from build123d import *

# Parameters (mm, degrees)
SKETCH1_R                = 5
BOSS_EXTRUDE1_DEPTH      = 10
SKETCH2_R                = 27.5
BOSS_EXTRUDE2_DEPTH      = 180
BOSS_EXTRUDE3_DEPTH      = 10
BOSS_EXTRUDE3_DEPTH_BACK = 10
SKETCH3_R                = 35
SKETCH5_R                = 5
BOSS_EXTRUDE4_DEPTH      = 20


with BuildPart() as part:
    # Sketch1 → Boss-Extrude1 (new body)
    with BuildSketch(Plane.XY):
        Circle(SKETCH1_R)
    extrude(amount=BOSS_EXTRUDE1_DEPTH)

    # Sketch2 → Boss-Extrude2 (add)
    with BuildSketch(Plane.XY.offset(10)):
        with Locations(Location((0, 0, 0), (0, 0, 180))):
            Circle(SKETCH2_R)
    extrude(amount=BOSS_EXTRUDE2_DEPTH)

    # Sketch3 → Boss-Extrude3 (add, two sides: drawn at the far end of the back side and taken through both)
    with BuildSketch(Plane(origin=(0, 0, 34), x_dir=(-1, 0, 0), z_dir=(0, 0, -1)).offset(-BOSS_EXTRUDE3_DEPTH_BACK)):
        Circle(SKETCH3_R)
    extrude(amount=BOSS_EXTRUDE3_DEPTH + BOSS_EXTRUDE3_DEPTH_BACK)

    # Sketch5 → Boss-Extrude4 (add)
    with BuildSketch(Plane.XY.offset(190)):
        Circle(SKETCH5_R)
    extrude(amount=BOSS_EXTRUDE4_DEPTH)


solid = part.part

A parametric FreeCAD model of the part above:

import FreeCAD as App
import Part
import Sketcher

doc = App.newDocument("Part")
params = doc.addObject("Spreadsheet::Sheet", "Params")
for row, (alias, value) in enumerate([
    ("sketch1_diameter", "10 mm"),
    ("pad1_length", "10 mm"),
    ("sketch2_diameter", "55 mm"),
    ("pad2_length", "180 mm"),
    ("sketch3_diameter", "70 mm"),
    ("pad3_length", "10 mm"),
    ("pad3_length2", "10 mm"),
    ("sketch4_diameter", "10 mm"),
    ("pad4_length", "20 mm"),
], start=1):
    params.set(f"A{row}", alias)
    params.set(f"B{row}", "=" + value)
    params.setAlias(f"B{row}", alias)

body = doc.addObject("PartDesign::Body", "Body")

sketch1 = body.newObject("Sketcher::SketchObject", "Sketch")
sketch1.AttachmentSupport = (doc.getObject("XY_Plane"), [""])
sketch1.MapMode = "FlatFace"
sketch1.addGeometry(Part.Circle(App.Vector(0, 0, 0), App.Vector(0, 0, 1), 5), False)
sketch1.addConstraint(Sketcher.Constraint("Coincident", 0, 3, -1, 1))
sketch1.addConstraint(Sketcher.Constraint("Diameter", 0, 10.0))
sketch1.setExpression("Constraints[1]", "Params.sketch1_diameter")
pad1 = body.newObject("PartDesign::Pad", "Pad")
pad1.Profile = sketch1
pad1.setExpression("Length", "Params.pad1_length")

sketch2 = body.newObject("Sketcher::SketchObject", "Sketch001")
sketch2.AttachmentSupport = (doc.getObject("XY_Plane"), [""])
sketch2.MapMode = "FlatFace"
sketch2.AttachmentOffset = App.Placement(App.Vector(0, 0, 10), App.Rotation())
sketch2.addGeometry(Part.Circle(App.Vector(0, 0, 0), App.Vector(0, 0, 1), 27.5), False)
sketch2.addConstraint(Sketcher.Constraint("Coincident", 0, 3, -1, 1))
sketch2.addConstraint(Sketcher.Constraint("Diameter", 0, 55.0))
sketch2.setExpression("Constraints[1]", "Params.sketch2_diameter")
pad2 = body.newObject("PartDesign::Pad", "Pad001")
pad2.Profile = sketch2
pad2.setExpression("Length", "Params.pad2_length")

sketch3 = body.newObject("Sketcher::SketchObject", "Sketch002")
sketch3.AttachmentSupport = (doc.getObject("XY_Plane"), [""])
sketch3.MapMode = "FlatFace"
sketch3.AttachmentOffset = App.Placement(App.Vector(0, 0, 34), App.Rotation())
sketch3.addGeometry(Part.Circle(App.Vector(0, 0, 0), App.Vector(0, 0, 1), 35), False)
sketch3.addConstraint(Sketcher.Constraint("Coincident", 0, 3, -1, 1))
sketch3.addConstraint(Sketcher.Constraint("Diameter", 0, 70.0))
sketch3.setExpression("Constraints[1]", "Params.sketch3_diameter")
pad3 = body.newObject("PartDesign::Pad", "Pad002")
pad3.Profile = sketch3
pad3.Type = "TwoLengths"
pad3.setExpression("Length", "Params.pad3_length")
pad3.setExpression("Length2", "Params.pad3_length2")
pad3.Reversed = True

sketch4 = body.newObject("Sketcher::SketchObject", "Sketch003")
sketch4.AttachmentSupport = (doc.getObject("XY_Plane"), [""])
sketch4.MapMode = "FlatFace"
sketch4.AttachmentOffset = App.Placement(App.Vector(0, 0, 190), App.Rotation())
sketch4.addGeometry(Part.Circle(App.Vector(0, 0, 0), App.Vector(0, 0, 1), 5), False)
sketch4.addConstraint(Sketcher.Constraint("Coincident", 0, 3, -1, 1))
sketch4.addConstraint(Sketcher.Constraint("Diameter", 0, 10.0))
sketch4.setExpression("Constraints[1]", "Params.sketch4_diameter")
pad4 = body.newObject("PartDesign::Pad", "Pad003")
pad4.Profile = sketch4
pad4.setExpression("Length", "Params.pad4_length")

doc.recompute()
